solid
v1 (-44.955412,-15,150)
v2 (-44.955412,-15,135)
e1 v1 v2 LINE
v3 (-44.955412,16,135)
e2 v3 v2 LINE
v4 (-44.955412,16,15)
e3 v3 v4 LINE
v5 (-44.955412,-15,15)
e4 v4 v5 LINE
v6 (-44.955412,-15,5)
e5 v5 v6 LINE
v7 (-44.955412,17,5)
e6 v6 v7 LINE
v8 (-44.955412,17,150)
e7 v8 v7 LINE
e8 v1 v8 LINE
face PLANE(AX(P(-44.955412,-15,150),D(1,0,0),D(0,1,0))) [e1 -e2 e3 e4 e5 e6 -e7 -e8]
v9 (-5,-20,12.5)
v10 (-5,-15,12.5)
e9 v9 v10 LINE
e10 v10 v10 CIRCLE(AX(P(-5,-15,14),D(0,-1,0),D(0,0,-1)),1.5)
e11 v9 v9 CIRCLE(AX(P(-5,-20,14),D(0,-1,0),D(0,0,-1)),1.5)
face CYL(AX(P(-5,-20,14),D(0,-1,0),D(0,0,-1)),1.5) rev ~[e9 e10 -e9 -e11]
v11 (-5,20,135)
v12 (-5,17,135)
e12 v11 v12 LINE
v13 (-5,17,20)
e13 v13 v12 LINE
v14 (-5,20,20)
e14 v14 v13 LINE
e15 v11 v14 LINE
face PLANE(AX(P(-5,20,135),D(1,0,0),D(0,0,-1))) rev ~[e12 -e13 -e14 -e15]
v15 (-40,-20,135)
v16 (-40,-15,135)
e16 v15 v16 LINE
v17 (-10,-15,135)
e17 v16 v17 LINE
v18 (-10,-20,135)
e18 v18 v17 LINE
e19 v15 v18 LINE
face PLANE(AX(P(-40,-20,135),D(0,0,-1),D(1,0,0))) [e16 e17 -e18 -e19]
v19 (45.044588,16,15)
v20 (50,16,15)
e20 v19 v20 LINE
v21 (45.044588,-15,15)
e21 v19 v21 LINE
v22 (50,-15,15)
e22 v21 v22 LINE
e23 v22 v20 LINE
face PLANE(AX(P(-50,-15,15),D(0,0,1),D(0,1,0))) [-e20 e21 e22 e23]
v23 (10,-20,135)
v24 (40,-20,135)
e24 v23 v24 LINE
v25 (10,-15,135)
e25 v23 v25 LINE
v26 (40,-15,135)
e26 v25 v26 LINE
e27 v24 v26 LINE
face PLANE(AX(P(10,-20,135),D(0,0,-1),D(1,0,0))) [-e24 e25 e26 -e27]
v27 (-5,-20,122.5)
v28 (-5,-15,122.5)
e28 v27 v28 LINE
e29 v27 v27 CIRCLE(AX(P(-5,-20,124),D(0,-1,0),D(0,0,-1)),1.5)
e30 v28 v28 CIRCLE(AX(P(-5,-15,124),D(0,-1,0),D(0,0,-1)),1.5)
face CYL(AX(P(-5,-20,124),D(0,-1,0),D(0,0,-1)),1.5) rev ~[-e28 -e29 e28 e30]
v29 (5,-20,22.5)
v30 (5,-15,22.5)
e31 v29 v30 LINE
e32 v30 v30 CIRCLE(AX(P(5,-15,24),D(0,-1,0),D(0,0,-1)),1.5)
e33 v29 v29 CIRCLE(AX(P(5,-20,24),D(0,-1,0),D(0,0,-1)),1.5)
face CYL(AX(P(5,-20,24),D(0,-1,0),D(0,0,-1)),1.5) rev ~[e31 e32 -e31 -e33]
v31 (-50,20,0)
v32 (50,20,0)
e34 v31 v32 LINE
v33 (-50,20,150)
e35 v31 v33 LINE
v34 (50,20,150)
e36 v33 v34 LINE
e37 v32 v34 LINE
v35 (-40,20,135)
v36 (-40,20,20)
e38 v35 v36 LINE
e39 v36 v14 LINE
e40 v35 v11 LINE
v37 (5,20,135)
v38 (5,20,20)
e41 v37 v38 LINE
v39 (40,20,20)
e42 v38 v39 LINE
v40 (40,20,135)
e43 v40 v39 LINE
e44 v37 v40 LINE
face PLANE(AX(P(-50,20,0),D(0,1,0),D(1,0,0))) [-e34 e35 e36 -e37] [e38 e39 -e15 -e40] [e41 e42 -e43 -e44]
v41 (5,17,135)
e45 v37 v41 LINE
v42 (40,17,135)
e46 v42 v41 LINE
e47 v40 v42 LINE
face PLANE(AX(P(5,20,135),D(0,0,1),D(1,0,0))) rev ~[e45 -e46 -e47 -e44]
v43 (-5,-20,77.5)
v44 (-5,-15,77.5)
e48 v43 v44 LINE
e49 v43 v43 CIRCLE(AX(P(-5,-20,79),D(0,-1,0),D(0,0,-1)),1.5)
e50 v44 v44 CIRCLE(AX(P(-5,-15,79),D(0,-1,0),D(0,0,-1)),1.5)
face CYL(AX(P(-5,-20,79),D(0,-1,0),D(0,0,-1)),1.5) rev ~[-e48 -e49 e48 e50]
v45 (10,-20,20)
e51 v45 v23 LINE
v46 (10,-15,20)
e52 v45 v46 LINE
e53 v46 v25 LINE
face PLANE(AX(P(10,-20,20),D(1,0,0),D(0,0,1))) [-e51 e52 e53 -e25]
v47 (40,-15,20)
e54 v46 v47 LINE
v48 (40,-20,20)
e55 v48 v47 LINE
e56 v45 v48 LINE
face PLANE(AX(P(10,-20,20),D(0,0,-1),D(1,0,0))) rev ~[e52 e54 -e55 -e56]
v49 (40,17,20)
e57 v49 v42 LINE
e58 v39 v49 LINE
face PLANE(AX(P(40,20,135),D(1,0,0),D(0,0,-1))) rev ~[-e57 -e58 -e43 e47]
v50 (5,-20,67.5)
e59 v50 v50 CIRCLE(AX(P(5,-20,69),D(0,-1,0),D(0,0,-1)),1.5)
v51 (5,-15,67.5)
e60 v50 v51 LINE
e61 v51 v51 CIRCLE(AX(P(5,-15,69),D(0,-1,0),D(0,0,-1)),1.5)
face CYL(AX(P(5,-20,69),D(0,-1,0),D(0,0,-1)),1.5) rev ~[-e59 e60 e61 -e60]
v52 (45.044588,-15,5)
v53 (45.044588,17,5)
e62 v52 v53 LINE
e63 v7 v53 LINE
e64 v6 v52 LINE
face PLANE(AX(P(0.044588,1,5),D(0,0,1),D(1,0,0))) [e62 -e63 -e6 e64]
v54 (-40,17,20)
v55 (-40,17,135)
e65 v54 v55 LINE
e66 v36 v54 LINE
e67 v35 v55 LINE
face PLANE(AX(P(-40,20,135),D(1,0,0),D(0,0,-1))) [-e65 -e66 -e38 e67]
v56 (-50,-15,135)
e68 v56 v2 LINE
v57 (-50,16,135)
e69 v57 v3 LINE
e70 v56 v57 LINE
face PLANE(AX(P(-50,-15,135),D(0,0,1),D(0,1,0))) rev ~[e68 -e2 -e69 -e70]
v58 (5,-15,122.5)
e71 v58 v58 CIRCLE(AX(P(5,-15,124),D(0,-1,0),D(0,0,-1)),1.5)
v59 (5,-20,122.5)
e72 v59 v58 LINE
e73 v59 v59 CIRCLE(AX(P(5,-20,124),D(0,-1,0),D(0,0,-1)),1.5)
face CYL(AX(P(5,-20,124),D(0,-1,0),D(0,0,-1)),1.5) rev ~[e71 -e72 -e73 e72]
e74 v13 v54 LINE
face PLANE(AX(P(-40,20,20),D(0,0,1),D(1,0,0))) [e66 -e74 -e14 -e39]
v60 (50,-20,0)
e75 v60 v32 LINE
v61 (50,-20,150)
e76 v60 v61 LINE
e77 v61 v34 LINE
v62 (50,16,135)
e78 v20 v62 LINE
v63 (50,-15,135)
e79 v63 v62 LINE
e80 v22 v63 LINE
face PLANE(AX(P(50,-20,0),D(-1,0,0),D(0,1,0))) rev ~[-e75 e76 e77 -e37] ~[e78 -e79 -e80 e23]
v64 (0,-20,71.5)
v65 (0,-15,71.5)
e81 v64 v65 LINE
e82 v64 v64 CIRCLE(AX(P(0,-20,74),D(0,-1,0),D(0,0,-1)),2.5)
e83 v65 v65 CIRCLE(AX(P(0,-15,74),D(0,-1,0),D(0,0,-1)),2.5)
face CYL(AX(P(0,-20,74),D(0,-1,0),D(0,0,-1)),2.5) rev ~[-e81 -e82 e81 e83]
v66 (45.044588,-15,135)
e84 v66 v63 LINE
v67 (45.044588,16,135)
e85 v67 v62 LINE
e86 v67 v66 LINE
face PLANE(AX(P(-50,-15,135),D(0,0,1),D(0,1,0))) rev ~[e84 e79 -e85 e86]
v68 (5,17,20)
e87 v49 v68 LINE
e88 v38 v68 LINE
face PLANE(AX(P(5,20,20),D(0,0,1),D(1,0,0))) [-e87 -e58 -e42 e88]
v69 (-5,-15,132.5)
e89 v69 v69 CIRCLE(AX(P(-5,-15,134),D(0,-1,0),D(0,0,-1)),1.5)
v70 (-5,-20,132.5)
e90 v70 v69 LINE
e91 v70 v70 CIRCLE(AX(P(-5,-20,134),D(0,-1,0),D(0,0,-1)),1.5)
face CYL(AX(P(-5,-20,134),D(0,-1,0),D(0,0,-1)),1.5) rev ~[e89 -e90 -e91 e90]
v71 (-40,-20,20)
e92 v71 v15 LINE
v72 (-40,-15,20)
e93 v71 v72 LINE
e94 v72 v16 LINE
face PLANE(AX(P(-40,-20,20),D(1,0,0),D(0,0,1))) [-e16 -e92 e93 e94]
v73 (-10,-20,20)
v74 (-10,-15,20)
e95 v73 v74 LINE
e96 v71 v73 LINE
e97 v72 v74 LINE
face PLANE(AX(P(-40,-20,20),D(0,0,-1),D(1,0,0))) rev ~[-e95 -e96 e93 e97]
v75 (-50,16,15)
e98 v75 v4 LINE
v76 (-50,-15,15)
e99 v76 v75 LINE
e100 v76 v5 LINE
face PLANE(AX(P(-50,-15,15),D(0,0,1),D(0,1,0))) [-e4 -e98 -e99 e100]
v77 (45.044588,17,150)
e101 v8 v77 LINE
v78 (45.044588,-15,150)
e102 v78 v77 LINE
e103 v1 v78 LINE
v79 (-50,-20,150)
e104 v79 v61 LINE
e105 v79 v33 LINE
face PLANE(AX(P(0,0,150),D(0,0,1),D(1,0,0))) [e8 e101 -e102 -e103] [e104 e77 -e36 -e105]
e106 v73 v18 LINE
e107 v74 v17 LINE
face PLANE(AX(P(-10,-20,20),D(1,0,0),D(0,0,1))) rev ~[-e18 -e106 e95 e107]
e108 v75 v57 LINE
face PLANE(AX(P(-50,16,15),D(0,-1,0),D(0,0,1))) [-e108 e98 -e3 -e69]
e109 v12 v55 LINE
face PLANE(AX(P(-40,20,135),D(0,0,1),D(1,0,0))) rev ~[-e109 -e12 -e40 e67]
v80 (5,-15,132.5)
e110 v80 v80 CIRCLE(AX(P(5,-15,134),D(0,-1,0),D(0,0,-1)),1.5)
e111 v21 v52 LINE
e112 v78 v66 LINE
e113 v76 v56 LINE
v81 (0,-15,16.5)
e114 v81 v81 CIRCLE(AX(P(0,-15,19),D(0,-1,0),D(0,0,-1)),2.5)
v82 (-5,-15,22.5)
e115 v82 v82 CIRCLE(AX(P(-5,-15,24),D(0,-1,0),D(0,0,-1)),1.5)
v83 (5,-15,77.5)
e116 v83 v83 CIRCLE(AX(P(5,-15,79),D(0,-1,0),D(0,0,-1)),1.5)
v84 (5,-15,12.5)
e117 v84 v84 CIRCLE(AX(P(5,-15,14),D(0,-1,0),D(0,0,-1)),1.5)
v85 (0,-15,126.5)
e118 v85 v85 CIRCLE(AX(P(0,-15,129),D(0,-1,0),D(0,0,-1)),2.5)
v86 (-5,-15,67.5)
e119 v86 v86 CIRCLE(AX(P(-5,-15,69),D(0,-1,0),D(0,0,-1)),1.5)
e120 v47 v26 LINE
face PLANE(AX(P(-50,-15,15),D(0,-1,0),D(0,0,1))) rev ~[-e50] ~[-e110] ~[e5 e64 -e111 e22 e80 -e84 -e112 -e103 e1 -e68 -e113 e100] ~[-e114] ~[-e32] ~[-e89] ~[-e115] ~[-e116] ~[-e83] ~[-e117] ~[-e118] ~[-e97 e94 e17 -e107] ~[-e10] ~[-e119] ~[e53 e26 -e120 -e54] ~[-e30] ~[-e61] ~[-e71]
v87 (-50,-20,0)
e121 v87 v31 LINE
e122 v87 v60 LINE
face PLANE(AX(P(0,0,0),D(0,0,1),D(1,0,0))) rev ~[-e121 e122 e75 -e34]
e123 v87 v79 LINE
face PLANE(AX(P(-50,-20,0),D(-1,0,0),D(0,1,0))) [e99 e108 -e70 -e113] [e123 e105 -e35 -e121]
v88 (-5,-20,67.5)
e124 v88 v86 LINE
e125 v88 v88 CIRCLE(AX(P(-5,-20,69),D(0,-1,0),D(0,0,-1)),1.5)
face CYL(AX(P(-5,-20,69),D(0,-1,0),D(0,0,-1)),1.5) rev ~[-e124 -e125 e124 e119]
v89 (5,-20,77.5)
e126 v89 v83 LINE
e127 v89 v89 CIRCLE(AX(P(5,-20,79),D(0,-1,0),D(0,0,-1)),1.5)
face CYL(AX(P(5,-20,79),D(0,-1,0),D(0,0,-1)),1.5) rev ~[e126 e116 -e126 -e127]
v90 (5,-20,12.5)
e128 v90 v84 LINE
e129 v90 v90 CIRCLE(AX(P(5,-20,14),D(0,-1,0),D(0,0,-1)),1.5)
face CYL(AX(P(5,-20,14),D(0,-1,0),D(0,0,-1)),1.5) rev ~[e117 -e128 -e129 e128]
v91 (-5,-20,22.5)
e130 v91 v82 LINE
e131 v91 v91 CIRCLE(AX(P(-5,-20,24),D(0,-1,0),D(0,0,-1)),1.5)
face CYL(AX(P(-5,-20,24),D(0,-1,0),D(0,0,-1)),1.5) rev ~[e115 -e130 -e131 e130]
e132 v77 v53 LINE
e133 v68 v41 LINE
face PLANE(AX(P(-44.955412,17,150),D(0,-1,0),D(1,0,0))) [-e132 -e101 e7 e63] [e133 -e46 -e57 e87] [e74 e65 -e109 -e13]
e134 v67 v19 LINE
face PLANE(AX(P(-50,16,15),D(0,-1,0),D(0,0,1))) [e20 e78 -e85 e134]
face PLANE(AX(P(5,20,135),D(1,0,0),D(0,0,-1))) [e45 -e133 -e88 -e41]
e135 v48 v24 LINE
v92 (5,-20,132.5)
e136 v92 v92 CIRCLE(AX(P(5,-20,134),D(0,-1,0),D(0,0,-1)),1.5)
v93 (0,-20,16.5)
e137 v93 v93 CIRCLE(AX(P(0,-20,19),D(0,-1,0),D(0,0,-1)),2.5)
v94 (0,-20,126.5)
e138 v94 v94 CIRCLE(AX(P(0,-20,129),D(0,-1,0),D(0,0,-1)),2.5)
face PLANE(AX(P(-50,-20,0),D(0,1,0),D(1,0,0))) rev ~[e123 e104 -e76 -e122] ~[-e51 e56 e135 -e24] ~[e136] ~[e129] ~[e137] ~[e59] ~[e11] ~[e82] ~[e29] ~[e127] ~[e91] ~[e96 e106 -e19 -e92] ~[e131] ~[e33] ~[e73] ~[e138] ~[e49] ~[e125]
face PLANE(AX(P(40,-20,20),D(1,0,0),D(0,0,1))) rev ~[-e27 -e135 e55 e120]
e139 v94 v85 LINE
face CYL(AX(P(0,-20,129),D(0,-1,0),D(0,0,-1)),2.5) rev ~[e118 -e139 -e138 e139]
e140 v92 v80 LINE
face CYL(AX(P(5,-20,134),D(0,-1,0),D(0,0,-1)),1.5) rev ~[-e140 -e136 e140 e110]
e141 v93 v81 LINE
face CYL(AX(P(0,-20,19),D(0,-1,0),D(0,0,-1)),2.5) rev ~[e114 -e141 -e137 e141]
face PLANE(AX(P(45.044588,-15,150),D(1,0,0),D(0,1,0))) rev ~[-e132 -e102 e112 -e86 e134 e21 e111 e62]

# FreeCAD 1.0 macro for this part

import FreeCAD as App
import Part
import Sketcher
from FreeCAD import Vector
Q = App.Units.Quantity


def add_polygon(sketch, points):
    """Adds a closed chain of lines whose ends are joined by coincident constraints."""
    first, n = sketch.GeometryCount, len(points)
    for a, b in zip(points, points[1:] + points[:1]):
        sketch.addGeometry(Part.LineSegment(App.Vector(*a, 0), App.Vector(*b, 0)), False)
    for i in range(n):
        sketch.addConstraint(Sketcher.Constraint("Coincident", first + i, 2, first + (i + 1) % n, 1))

doc = App.newDocument("Part")
body = doc.addObject("PartDesign::Body", "Body")

# Sketch on XY plane
sketch1 = body.newObject("Sketcher::SketchObject", "Sketch")
sketch1.AttachmentSupport = (doc.getObject("XY_Plane"), [""])
sketch1.MapMode = "FlatFace"
add_polygon(sketch1, [(-50, 20), (-50, -20), (50, -20), (50, 20)])  # lines 0-3
sketch1.addConstraint([
    Sketcher.Constraint("Vertical", 0),
    Sketcher.Constraint("Horizontal", 1),
    Sketcher.Constraint("Vertical", 2),
    Sketcher.Constraint("Horizontal", 3),
    Sketcher.Constraint("Symmetric", 0, 2, 2, 2, -1, 1),
    Sketcher.Constraint("DistanceX", 1, 1, 1, 2, Q("100 mm")),
    Sketcher.Constraint("DistanceY", 0, 2, 0, 1, Q("40 mm")),
])
pad1 = body.newObject("PartDesign::Pad", "Pad")
pad1.Profile = sketch1
pad1.Length = 150

# Sketch on XY plane
sketch2 = body.newObject("Sketcher::SketchObject", "Sketch001")
sketch2.AttachmentSupport = (doc.getObject("XY_Plane"), [""])
sketch2.MapMode = "FlatFace"
sketch2.AttachmentOffset = App.Placement(Vector(0, 0, 150), App.Rotation())
add_polygon(sketch2, [(-45, 17), (-45, -15), (45, -15), (45, 17)])  # lines 0-3
sketch2.addConstraint([
    Sketcher.Constraint("Vertical", 0),
    Sketcher.Constraint("Horizontal", 1),
    Sketcher.Constraint("Vertical", 2),
    Sketcher.Constraint("Horizontal", 3),
    Sketcher.Constraint("DistanceX", 1, 1, 1, 2, Q("90 mm")),
    Sketcher.Constraint("DistanceY", 0, 2, 0, 1, Q("32 mm")),
    Sketcher.Constraint("DistanceY", 0, 2, -1, 1, Q("15 mm")),
    Sketcher.Constraint("DistanceX", 0, 2, -1, 1, Q("44.955412 mm")),
])
pocket1 = body.newObject("PartDesign::Pocket", "Pocket")
pocket1.Profile = sketch2
pocket1.Length = 145

# Sketch on XZ plane
sketch3 = body.newObject("Sketcher::SketchObject", "Sketch002")
sketch3.AttachmentSupport = (doc.getObject("XZ_Plane"), [""])
sketch3.MapMode = "FlatFace"
sketch3.AttachmentOffset = App.Placement(Vector(0, 0, 20), App.Rotation())
add_polygon(sketch3, [(-40, 135), (-40, 20), (-10, 20), (-10, 135)])  # lines 0-3
add_polygon(sketch3, [(10, 135), (10, 20), (40, 20), (40, 135)])  # lines 4-7
sketch3.addConstraint([
    Sketcher.Constraint("Vertical", 0),
    Sketcher.Constraint("Horizontal", 1),
    Sketcher.Constraint("Vertical", 2),
    Sketcher.Constraint("Horizontal", 3),
    Sketcher.Constraint("Vertical", 4),
    Sketcher.Constraint("Horizontal", 5),
    Sketcher.Constraint("Vertical", 6),
    Sketcher.Constraint("Horizontal", 7),
    Sketcher.Constraint("Symmetric", 1, 2, 4, 2, -2),
    Sketcher.Constraint("Symmetric", 3, 2, 6, 2, -2),
    Sketcher.Constraint("DistanceX", 1, 1, 1, 2, Q("30 mm")),
    Sketcher.Constraint("DistanceY", 0, 2, 0, 1, Q("115 mm")),
    Sketcher.Constraint("DistanceX", 0, 2, -1, 1, Q("40 mm")),
    Sketcher.Constraint("DistanceY", -1, 1, 0, 2, Q("20 mm")),
])
pocket2 = body.newObject("PartDesign::Pocket", "Pocket001")
pocket2.Profile = sketch3
pocket2.Length = 20

# Sketch on XZ plane
sketch4 = body.newObject("Sketcher::SketchObject", "Sketch003")
sketch4.AttachmentSupport = (doc.getObject("XZ_Plane"), [""])
sketch4.MapMode = "FlatFace"
sketch4.AttachmentOffset = App.Placement(Vector(0, 0, -20), App.Rotation())
add_polygon(sketch4, [(-40, 20), (-40, 135), (-5, 135), (-5, 20)])  # lines 0-3
add_polygon(sketch4, [(5, 20), (5, 135), (40, 135), (40, 20)])  # lines 4-7
sketch4.addConstraint([
    Sketcher.Constraint("Vertical", 0),
    Sketcher.Constraint("Horizontal", 1),
    Sketcher.Constraint("Vertical", 2),
    Sketcher.Constraint("Horizontal", 3),
    Sketcher.Constraint("Vertical", 4),
    Sketcher.Constraint("Horizontal", 5),
    Sketcher.Constraint("Vertical", 6),
    Sketcher.Constraint("Horizontal", 7),
    Sketcher.Constraint("Symmetric", 1, 2, 4, 2, -2),
    Sketcher.Constraint("Symmetric", 3, 2, 6, 2, -2),
    Sketcher.Constraint("DistanceX", 1, 1, 1, 2, Q("35 mm")),
    Sketcher.Constraint("DistanceY", 0, 1, 0, 2, Q("115 mm")),
    Sketcher.Constraint("DistanceX", 0, 2, -1, 1, Q("40 mm")),
    Sketcher.Constraint("DistanceY", -1, 1, 0, 2, Q("135 mm")),
])
pocket3 = body.newObject("PartDesign::Pocket", "Pocket002")
pocket3.Profile = sketch4
pocket3.Length = 20
pocket3.Reversed = True

# Sketch on YZ plane
sketch5 = body.newObject("Sketcher::SketchObject", "Sketch004")
sketch5.AttachmentSupport = (doc.getObject("YZ_Plane"), [""])
sketch5.MapMode = "FlatFace"
sketch5.AttachmentOffset = App.Placement(Vector(0, 0, -50), App.Rotation())
add_polygon(sketch5, [(16, 15), (-15, 15), (-15, 135), (16, 135)])  # lines 0-3
sketch5.addConstraint([
    Sketcher.Constraint("Horizontal", 0),
    Sketcher.Constraint("Vertical", 1),
    Sketcher.Constraint("Horizontal", 2),
    Sketcher.Constraint("Vertical", 3),
    Sketcher.Constraint("DistanceX", 0, 2, 0, 1, Q("31 mm")),
    Sketcher.Constraint("DistanceY", 1, 1, 1, 2, Q("120 mm")),
    Sketcher.Constraint("DistanceX", 0, 2, -1, 1, Q("15 mm")),
    Sketcher.Constraint("DistanceY", -1, 1, 0, 2, Q("15 mm")),
])
pocket4 = body.newObject("PartDesign::Pocket", "Pocket003")
pocket4.Profile = sketch5
pocket4.Length = 207
pocket4.Reversed = True

# Sketch on XZ plane
sketch6 = body.newObject("Sketcher::SketchObject", "Sketch005")
sketch6.AttachmentSupport = (doc.getObject("XZ_Plane"), [""])
sketch6.MapMode = "FlatFace"
sketch6.AttachmentOffset = App.Placement(Vector(0, 0, 20), App.Rotation())
sketch6.addGeometry([
    Part.Circle(Vector(-5, 134, 0), Vector(0, 0, 1), 1.5),
    Part.Circle(Vector(5, 134, 0), Vector(0, 0, 1), 1.5),
    Part.Circle(Vector(5, 124, 0), Vector(0, 0, 1), 1.5),
    Part.Circle(Vector(-5, 124, 0), Vector(0, 0, 1), 1.5),
], False)
sketch6.addConstraint([
    Sketcher.Constraint("Equal", 0, 1),
    Sketcher.Constraint("Equal", 1, 2),
    Sketcher.Constraint("Equal", 2, 3),
    Sketcher.Constraint("Symmetric", 0, 3, 1, 3, -2),
    Sketcher.Constraint("Symmetric", 2, 3, 3, 3, -2),
    Sketcher.Constraint("Vertical", 1, 3, 2, 3),
    Sketcher.Constraint("Diameter", 0, Q("3 mm")),
    Sketcher.Constraint("DistanceX", 0, 3, -1, 1, Q("5 mm")),
    Sketcher.Constraint("DistanceY", -1, 1, 0, 3, Q("134 mm")),
    Sketcher.Constraint("DistanceY", -1, 1, 2, 3, Q("124 mm")),
])
pocket5 = body.newObject("PartDesign::Pocket", "Pocket004")
pocket5.Profile = sketch6
pocket5.Length = 15

# Sketch on XZ plane
sketch7 = body.newObject("Sketcher::SketchObject", "Sketch006")
sketch7.AttachmentSupport = (doc.getObject("XZ_Plane"), [""])
sketch7.MapMode = "FlatFace"
sketch7.AttachmentOffset = App.Placement(Vector(0, 0, 20), App.Rotation())
sketch7.addGeometry([
    Part.Circle(Vector(0, 129, 0), Vector(0, 0, 1), 2.5),  # 0
    Part.Circle(Vector(0, 74, 0), Vector(0, 0, 1), 2.5),  # 1
    Part.Circle(Vector(0, 19, 0), Vector(0, 0, 1), 2.5),  # 2
    Part.Circle(Vector(-5, 79, 0), Vector(0, 0, 1), 1.5),  # 3
    Part.Circle(Vector(-5, 69, 0), Vector(0, 0, 1), 1.5),  # 4
    Part.Circle(Vector(5, 69, 0), Vector(0, 0, 1), 1.5),  # 5
    Part.Circle(Vector(5, 79, 0), Vector(0, 0, 1), 1.5),  # 6
    Part.Circle(Vector(-5, 14, 0), Vector(0, 0, 1), 1.5),  # 7
    Part.Circle(Vector(-5, 24, 0), Vector(0, 0, 1), 1.5),  # 8
    Part.Circle(Vector(5, 24, 0), Vector(0, 0, 1), 1.5),  # 9
    Part.Circle(Vector(5, 14, 0), Vector(0, 0, 1), 1.5),  # 10
], False)
sketch7.addConstraint([
    Sketcher.Constraint("Equal", 0, 1),
    Sketcher.Constraint("Equal", 1, 2),
    Sketcher.Constraint("Equal", 3, 4),
    Sketcher.Constraint("Equal", 4, 5),
    Sketcher.Constraint("Equal", 5, 6),
    Sketcher.Constraint("Equal", 6, 7),
    Sketcher.Constraint("Equal", 7, 8),
    Sketcher.Constraint("Equal", 8, 9),
    Sketcher.Constraint("Equal", 9, 10),
    Sketcher.Constraint("Symmetric", 4, 3, 5, 3, -2),
    Sketcher.Constraint("Symmetric", 3, 3, 6, 3, -2),
    Sketcher.Constraint("Symmetric", 8, 3, 9, 3, -2),
    Sketcher.Constraint("Symmetric", 7, 3, 10, 3, -2),
    Sketcher.Constraint("PointOnObject", 0, 3, -2),
    Sketcher.Constraint("PointOnObject", 1, 3, -2),
    Sketcher.Constraint("PointOnObject", 2, 3, -2),
    Sketcher.Constraint("Vertical", 3, 3, 4, 3),
    Sketcher.Constraint("Vertical", 4, 3, 7, 3),
    Sketcher.Constraint("Vertical", 7, 3, 8, 3),
    Sketcher.Constraint("Diameter", 0, Q("5 mm")),
    Sketcher.Constraint("Diameter", 3, Q("3 mm")),
    Sketcher.Constraint("DistanceY", -1, 1, 0, 3, Q("129 mm")),
    Sketcher.Constraint("DistanceY", -1, 1, 1, 3, Q("74 mm")),
    Sketcher.Constraint("DistanceY", -1, 1, 2, 3, Q("19 mm")),
    Sketcher.Constraint("DistanceX", 3, 3, -1, 1, Q("5 mm")),
    Sketcher.Constraint("DistanceY", -1, 1, 3, 3, Q("79 mm")),
    Sketcher.Constraint("DistanceY", -1, 1, 4, 3, Q("69 mm")),
    Sketcher.Constraint("DistanceY", -1, 1, 7, 3, Q("14 mm")),
    Sketcher.Constraint("DistanceY", -1, 1, 8, 3, Q("24 mm")),
])
pocket6 = body.newObject("PartDesign::Pocket", "Pocket005")
pocket6.Profile = sketch7
pocket6.Length = 15

doc.recompute()
